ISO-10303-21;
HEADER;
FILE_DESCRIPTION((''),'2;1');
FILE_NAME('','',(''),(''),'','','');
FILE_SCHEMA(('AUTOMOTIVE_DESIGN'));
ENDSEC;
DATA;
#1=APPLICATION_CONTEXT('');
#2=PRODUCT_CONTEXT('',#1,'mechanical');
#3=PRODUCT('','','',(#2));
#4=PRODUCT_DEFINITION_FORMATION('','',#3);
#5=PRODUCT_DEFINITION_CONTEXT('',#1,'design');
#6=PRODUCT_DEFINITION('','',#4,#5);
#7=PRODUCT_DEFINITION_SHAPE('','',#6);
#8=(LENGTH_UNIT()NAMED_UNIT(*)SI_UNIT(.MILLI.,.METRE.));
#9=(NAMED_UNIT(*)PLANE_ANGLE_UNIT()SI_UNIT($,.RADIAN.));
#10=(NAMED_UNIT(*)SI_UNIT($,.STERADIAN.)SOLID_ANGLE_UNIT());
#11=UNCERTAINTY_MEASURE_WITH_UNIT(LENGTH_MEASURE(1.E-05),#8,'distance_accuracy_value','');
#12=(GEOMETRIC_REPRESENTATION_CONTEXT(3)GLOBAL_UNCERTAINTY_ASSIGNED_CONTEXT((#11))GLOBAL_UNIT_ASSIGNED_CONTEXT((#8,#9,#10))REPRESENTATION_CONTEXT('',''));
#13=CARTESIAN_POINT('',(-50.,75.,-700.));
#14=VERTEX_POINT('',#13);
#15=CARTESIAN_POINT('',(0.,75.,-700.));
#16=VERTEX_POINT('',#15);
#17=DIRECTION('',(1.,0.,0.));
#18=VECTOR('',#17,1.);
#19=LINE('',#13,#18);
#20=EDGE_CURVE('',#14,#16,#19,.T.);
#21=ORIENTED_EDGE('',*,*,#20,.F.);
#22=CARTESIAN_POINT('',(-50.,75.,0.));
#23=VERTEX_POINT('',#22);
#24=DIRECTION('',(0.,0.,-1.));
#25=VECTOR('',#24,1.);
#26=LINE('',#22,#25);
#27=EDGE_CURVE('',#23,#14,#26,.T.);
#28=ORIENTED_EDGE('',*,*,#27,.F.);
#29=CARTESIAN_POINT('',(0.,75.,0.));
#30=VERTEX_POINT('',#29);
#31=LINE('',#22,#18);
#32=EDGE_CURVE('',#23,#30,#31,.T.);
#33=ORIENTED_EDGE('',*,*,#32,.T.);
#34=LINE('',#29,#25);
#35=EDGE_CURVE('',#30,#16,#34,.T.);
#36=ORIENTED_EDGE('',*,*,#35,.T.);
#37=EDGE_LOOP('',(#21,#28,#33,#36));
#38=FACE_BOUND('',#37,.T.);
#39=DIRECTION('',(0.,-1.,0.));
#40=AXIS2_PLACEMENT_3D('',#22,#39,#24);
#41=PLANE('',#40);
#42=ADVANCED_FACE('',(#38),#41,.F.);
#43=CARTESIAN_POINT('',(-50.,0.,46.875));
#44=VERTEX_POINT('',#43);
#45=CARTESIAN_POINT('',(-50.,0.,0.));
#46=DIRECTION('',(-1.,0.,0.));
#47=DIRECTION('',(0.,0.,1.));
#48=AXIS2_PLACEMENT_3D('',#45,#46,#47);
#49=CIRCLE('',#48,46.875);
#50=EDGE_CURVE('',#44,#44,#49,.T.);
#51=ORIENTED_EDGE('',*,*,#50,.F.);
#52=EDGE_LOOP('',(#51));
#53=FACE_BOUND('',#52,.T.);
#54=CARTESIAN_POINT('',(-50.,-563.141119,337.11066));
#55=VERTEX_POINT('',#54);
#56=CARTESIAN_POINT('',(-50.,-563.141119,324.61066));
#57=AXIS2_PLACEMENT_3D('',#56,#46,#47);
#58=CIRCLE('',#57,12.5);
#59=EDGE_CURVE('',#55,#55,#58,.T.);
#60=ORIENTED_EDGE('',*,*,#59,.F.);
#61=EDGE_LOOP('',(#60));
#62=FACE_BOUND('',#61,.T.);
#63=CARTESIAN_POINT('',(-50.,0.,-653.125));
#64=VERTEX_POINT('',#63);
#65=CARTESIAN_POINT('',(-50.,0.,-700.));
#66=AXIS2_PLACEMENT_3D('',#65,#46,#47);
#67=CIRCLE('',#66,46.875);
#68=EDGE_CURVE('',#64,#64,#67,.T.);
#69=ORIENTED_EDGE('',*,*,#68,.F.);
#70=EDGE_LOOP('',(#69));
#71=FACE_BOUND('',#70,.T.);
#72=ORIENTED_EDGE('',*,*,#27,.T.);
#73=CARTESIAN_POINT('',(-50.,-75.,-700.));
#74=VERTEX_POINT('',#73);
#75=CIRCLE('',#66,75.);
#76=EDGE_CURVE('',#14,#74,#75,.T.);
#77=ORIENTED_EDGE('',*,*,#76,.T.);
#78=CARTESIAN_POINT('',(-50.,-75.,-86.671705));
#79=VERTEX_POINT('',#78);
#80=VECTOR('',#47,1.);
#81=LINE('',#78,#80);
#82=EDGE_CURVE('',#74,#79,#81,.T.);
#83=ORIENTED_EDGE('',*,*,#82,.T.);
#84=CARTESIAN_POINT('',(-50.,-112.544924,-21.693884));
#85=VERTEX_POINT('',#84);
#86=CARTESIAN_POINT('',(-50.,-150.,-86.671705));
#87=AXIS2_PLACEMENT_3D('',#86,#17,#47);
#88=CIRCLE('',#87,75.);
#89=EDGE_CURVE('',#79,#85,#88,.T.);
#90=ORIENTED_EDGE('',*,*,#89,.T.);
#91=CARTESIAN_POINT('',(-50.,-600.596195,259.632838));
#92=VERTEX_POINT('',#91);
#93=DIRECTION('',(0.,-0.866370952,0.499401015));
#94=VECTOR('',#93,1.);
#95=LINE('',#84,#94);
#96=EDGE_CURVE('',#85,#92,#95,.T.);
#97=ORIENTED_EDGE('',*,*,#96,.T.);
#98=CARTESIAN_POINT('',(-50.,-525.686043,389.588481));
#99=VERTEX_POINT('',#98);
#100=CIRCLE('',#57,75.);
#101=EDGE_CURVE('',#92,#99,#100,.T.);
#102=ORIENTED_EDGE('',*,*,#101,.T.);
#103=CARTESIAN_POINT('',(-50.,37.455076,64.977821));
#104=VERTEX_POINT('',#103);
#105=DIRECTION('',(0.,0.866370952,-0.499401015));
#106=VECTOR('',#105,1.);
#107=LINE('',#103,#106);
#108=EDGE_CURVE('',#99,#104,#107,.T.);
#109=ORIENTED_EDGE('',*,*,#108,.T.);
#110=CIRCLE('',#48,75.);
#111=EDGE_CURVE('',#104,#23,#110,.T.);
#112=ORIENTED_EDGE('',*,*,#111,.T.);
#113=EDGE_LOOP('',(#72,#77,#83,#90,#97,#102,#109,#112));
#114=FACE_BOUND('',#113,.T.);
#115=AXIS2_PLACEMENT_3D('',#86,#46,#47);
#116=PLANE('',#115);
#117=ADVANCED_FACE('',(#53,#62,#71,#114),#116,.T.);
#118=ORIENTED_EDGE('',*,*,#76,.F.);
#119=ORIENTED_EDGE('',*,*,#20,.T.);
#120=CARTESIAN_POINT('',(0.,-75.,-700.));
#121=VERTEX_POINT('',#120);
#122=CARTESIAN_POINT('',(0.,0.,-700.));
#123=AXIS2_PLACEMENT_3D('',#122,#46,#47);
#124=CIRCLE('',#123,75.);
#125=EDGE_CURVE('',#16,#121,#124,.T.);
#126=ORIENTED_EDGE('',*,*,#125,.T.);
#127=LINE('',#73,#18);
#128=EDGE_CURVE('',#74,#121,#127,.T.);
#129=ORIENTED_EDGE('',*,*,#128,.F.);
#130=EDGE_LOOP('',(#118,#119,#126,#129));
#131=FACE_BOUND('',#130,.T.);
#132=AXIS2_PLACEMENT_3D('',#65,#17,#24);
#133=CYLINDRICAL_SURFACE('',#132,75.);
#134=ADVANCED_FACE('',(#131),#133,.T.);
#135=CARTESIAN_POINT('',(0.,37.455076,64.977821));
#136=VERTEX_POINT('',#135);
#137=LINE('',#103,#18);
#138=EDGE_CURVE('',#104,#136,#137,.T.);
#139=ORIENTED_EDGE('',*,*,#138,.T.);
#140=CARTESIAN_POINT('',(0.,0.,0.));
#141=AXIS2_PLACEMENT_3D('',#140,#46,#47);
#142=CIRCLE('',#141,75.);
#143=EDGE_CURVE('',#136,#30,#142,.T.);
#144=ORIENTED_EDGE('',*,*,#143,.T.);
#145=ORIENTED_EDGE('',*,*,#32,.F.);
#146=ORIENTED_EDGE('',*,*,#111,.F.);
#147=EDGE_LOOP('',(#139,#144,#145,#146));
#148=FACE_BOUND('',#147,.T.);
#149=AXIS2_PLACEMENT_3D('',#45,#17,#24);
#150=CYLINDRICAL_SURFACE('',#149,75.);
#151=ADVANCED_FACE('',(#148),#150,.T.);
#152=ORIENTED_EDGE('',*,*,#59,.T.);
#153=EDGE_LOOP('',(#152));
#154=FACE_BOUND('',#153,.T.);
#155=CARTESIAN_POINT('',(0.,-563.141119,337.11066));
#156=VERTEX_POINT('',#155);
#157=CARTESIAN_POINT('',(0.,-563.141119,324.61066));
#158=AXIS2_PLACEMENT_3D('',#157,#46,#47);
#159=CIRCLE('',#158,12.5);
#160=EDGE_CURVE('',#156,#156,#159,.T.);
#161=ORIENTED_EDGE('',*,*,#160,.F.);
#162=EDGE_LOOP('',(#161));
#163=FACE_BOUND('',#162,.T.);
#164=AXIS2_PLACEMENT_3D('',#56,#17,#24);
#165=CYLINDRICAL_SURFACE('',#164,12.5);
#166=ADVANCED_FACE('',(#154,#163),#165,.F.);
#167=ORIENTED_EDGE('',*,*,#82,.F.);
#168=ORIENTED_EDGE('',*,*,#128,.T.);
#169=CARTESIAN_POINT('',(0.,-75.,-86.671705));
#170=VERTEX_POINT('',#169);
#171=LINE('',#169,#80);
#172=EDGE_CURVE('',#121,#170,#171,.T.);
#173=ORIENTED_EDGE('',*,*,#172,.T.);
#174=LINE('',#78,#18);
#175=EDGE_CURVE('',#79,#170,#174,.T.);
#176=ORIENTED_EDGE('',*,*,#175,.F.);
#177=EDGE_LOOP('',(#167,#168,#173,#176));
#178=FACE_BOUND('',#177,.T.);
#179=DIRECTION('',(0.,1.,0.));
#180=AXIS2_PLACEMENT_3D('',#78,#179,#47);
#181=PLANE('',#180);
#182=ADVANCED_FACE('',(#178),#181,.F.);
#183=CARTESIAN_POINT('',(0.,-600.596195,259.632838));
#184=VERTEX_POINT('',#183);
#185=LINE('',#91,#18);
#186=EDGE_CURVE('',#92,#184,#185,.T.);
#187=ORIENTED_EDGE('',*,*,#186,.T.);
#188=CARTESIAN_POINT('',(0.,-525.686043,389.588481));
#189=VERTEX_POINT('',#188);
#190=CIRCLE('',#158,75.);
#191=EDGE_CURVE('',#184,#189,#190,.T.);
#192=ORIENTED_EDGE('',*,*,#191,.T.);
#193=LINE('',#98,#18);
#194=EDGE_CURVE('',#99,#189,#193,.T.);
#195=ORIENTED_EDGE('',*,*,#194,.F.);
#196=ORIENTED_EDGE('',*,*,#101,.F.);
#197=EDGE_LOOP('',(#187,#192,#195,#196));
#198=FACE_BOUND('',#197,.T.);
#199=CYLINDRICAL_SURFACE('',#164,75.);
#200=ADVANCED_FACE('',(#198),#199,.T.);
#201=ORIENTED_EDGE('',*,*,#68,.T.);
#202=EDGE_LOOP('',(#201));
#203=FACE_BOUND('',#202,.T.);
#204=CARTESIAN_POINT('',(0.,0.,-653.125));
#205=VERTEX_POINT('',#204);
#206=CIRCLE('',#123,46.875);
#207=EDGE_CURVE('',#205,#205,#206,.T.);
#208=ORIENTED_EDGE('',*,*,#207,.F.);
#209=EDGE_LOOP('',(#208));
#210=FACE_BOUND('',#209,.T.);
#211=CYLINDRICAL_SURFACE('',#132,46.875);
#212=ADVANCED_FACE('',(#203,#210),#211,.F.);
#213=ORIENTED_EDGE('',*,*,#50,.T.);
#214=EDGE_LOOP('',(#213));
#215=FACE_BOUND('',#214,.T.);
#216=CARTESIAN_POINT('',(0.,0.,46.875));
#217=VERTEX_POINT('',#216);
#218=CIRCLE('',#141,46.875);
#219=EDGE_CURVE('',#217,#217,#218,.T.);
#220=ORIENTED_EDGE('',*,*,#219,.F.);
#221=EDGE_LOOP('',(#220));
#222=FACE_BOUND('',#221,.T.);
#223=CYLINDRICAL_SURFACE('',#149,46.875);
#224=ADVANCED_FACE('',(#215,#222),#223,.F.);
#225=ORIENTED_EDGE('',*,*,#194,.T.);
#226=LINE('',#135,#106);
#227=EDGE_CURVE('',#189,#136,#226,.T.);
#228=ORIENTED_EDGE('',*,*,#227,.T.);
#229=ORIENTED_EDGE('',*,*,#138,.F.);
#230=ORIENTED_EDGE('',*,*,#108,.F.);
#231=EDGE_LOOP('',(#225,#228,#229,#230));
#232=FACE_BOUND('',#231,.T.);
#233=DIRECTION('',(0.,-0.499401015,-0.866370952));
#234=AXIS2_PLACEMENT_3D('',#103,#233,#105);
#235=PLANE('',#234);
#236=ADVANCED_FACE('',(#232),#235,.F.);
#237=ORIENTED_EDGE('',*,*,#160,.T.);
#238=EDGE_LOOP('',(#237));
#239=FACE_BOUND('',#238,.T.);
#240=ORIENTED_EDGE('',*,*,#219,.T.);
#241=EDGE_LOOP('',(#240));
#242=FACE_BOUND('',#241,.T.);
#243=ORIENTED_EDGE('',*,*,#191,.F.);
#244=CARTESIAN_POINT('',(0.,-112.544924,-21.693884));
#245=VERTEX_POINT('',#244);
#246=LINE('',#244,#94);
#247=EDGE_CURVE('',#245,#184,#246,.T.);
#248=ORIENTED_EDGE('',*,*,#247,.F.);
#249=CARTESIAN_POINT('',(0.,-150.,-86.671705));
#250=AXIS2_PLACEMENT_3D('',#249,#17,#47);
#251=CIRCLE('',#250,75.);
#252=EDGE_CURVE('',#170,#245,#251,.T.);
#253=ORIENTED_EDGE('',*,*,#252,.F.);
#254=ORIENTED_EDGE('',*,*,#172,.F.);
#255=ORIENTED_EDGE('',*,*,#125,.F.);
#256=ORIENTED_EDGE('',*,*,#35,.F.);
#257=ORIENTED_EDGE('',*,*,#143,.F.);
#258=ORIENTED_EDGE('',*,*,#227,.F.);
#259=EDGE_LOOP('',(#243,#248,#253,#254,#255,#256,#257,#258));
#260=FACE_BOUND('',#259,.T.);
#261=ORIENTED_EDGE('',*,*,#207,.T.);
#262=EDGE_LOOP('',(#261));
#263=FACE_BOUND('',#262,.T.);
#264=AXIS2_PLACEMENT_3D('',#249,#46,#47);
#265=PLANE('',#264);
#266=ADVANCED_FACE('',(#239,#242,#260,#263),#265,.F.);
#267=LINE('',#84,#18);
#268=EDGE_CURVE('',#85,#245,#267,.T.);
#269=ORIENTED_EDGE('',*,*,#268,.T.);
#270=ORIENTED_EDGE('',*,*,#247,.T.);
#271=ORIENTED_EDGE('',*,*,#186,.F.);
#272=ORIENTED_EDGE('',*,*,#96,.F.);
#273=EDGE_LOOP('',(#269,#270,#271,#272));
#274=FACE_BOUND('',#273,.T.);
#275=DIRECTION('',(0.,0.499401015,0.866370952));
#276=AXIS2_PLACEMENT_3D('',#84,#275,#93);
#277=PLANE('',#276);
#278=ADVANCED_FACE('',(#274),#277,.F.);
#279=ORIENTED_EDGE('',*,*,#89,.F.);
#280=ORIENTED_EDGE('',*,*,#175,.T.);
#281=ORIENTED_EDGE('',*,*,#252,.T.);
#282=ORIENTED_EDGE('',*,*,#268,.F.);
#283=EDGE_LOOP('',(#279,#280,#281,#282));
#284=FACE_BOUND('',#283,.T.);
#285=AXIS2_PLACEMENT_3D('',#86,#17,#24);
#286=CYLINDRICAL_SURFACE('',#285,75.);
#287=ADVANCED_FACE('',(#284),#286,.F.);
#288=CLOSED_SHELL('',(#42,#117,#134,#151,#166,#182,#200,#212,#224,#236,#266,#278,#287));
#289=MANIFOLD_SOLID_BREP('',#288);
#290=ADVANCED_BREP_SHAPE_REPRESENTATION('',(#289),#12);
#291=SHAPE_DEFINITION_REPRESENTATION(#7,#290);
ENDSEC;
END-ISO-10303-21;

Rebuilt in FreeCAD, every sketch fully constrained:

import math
import FreeCAD as App
import Part
import Sketcher
from FreeCAD import Vector

doc = App.newDocument("Part")
body = doc.addObject("PartDesign::Body", "Body")

sketch1 = body.newObject("Sketcher::SketchObject", "Sketch")
sketch1.AttachmentSupport = (doc.getObject("YZ_Plane"), [""])
sketch1.MapMode = "FlatFace"
sketch1.addGeometry([
    Part.LineSegment(Vector(-75, -700, 0), Vector(-75, -87, 0)),
    Part.ArcOfCircle(Part.Circle(Vector(-150, -87, 0), Vector(0, 0, 1), 75), math.radians(0), math.radians(60)),
    Part.LineSegment(Vector(-113, -22, 0), Vector(-601, 260, 0)),
    Part.ArcOfCircle(Part.Circle(Vector(-563, 325, 0), Vector(0, 0, 1), 75), math.radians(60), math.radians(240)),
    Part.LineSegment(Vector(-526, 390, 0), Vector(37, 65, 0)),
    Part.ArcOfCircle(Part.Circle(Vector(0, 0, 0), Vector(0, 0, 1), 75), math.radians(0), math.radians(60)),
    Part.LineSegment(Vector(75, 0, 0), Vector(75, -700, 0)),
    Part.ArcOfCircle(Part.Circle(Vector(0, -700, 0), Vector(0, 0, 1), 75), math.radians(180), math.radians(360)),
    Part.Circle(Vector(-563, 325, 0), Vector(0, 0, 1), 12),
    Part.Circle(Vector(0, 0, 0), Vector(0, 0, 1), 47),
    Part.Circle(Vector(0, -700, 0), Vector(0, 0, 1), 47),
], False)
sketch1.addConstraint([
    Sketcher.Constraint("Tangent", 0, 2, 1, 1),
    Sketcher.Constraint("Tangent", 1, 2, 2, 1),
    Sketcher.Constraint("Tangent", 2, 2, 3, 2),
    Sketcher.Constraint("Tangent", 3, 1, 4, 1),
    Sketcher.Constraint("Tangent", 4, 2, 5, 2),
    Sketcher.Constraint("Tangent", 5, 1, 6, 1),
    Sketcher.Constraint("Tangent", 6, 2, 7, 2),
    Sketcher.Constraint("Tangent", 7, 1, 0, 1),
    Sketcher.Constraint("Vertical", 0),
    Sketcher.Constraint("Vertical", 6),
    Sketcher.Constraint("Coincident", 5, 3, -1, 1),
    Sketcher.Constraint("Coincident", 9, 3, -1, 1),
    Sketcher.Constraint("Coincident", 8, 3, 3, 3),
    Sketcher.Constraint("Coincident", 10, 3, 7, 3),
    Sketcher.Constraint("Equal", 1, 3),
    Sketcher.Constraint("Equal", 3, 5),
    Sketcher.Constraint("Equal", 5, 7),
    Sketcher.Constraint("Equal", 9, 10),
    Sketcher.Constraint("Parallel", 2, 4),
    Sketcher.Constraint("Diameter", 8, 25.0),
    Sketcher.Constraint("Radius", 1, 75.0),
    Sketcher.Constraint("Diameter", 9, 93.75),
    Sketcher.Constraint("DistanceY", 6, 2, 6, 1, 700.0),
    Sketcher.Constraint("Distance", 4, 650.0),
    Sketcher.Constraint("DistanceY", 0, 1, 0, 2, 613.328295),
])
pad1 = body.newObject("PartDesign::Pad", "Pad")
pad1.Profile = sketch1
pad1.Length = 50
pad1.Reversed = True

doc.recompute()
